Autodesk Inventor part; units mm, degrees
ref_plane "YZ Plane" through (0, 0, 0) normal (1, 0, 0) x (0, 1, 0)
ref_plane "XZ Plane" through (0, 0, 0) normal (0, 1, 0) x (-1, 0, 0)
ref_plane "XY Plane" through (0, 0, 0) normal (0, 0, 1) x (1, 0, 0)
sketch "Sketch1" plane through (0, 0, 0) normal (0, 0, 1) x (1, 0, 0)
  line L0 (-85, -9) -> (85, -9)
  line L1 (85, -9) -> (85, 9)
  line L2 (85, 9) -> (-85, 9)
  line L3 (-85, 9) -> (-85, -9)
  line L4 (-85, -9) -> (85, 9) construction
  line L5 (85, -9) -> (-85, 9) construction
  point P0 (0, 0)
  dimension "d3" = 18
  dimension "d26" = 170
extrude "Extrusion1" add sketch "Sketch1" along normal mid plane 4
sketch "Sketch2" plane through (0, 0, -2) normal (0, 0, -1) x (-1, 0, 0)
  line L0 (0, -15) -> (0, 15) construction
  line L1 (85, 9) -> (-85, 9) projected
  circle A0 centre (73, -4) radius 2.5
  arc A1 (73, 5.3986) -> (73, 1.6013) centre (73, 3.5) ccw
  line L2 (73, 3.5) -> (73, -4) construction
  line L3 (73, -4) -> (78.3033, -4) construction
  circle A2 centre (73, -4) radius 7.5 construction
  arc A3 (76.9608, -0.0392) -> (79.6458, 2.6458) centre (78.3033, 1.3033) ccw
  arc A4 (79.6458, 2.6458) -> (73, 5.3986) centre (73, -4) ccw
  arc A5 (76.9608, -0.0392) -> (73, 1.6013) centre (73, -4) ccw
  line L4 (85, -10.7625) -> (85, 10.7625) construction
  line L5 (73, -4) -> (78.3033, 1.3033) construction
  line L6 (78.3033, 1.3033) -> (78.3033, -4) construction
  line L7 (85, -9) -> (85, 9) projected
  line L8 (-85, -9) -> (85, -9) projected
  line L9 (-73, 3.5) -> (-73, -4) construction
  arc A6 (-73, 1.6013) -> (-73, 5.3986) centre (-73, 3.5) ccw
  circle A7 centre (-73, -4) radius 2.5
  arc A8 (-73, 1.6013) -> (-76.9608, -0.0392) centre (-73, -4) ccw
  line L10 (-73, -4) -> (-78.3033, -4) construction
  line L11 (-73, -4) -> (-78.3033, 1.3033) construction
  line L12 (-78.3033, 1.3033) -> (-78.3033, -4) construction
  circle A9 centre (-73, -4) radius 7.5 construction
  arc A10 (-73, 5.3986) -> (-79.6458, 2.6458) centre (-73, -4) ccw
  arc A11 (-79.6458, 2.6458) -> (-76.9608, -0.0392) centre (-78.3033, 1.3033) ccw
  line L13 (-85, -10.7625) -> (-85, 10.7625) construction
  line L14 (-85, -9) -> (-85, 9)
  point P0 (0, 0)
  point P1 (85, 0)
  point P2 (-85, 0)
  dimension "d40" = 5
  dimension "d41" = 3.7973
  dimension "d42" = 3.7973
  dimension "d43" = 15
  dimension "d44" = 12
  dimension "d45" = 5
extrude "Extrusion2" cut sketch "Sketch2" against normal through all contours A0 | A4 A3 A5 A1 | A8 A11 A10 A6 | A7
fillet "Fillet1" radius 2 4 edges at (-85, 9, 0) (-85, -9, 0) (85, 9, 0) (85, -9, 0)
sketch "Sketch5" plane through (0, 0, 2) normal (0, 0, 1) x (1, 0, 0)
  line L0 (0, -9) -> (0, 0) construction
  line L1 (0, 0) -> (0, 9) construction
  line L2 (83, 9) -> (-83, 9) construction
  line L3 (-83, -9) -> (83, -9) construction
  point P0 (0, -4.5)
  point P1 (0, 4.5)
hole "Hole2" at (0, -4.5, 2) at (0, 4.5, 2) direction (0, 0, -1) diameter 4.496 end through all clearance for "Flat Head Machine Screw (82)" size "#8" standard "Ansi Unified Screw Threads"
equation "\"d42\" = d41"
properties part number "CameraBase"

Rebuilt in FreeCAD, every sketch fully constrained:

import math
import FreeCAD as App
import Part
import Sketcher


def edges_at(feature, points):
    """Names of the edges that pass closest to the given points."""
    edges = feature.Shape.Edges
    near = lambda p: min(range(len(edges)), key=lambda i: edges[i].distToShape(Part.Vertex(*p))[0])
    return sorted({f"Edge{near(p) + 1}" for p in points})


def add_polygon(sketch, points):
    """Adds a closed chain of lines whose ends are joined by coincident constraints."""
    first, n = sketch.GeometryCount, len(points)
    for a, b in zip(points, points[1:] + points[:1]):
        sketch.addGeometry(Part.LineSegment(App.Vector(*a, 0), App.Vector(*b, 0)), False)
    for i in range(n):
        sketch.addConstraint(Sketcher.Constraint("Coincident", first + i, 2, first + (i + 1) % n, 1))

doc = App.newDocument("Part")
body = doc.addObject("PartDesign::Body", "Body")

sketch1 = body.newObject("Sketcher::SketchObject", "Sketch")
sketch1.AttachmentSupport = (doc.getObject("XY_Plane"), [""])
sketch1.MapMode = "FlatFace"
add_polygon(sketch1, [(-85, 9), (-85, -9), (85, -9), (85, 9)])
sketch1.addConstraint([
    Sketcher.Constraint("Vertical", 0),
    Sketcher.Constraint("Horizontal", 1),
    Sketcher.Constraint("Vertical", 2),
    Sketcher.Constraint("Horizontal", 3),
    Sketcher.Constraint("Symmetric", 0, 2, 2, 2, -1, 1),
    Sketcher.Constraint("DistanceX", 1, 1, 1, 2, 170.0),
    Sketcher.Constraint("DistanceY", 0, 2, 0, 1, 18.0),
])
pad1 = body.newObject("PartDesign::Pad", "Pad")
pad1.Profile = sketch1
pad1.Length = 4
pad1.Midplane = True

sketch2 = body.newObject("Sketcher::SketchObject", "Sketch001")
sketch2.AttachmentSupport = (doc.getObject("XY_Plane"), [""])
sketch2.MapMode = "FlatFace"
sketch2.AttachmentOffset = App.Placement(App.Vector(0, 0, -2), App.Rotation())
sketch2.addGeometry([
    Part.Circle(App.Vector(-73, -4, 0), App.Vector(0, 0, 1), 2.5),
    Part.ArcOfCircle(Part.Circle(App.Vector(-73, -4, 0), App.Vector(0, 0, 1), 9.4), math.radians(90), math.radians(135)),
    Part.ArcOfCircle(Part.Circle(App.Vector(-73, 3.5, 0), App.Vector(0, 0, 1), 1.9), math.radians(-90), math.radians(90)),
    Part.ArcOfCircle(Part.Circle(App.Vector(-73, -4, 0), App.Vector(0, 0, 1), 5.6), math.radians(90), math.radians(135)),
    Part.ArcOfCircle(Part.Circle(App.Vector(-78.3, 1.3, 0), App.Vector(0, 0, 1), 1.9), math.radians(135), math.radians(315)),
    Part.ArcOfCircle(Part.Circle(App.Vector(73, -4, 0), App.Vector(0, 0, 1), 5.6), math.radians(45), math.radians(90)),
    Part.ArcOfCircle(Part.Circle(App.Vector(73, 3.5, 0), App.Vector(0, 0, 1), 1.9), math.radians(90), math.radians(270)),
    Part.ArcOfCircle(Part.Circle(App.Vector(73, -4, 0), App.Vector(0, 0, 1), 9.4), math.radians(45), math.radians(90)),
    Part.ArcOfCircle(Part.Circle(App.Vector(78.3, 1.3, 0), App.Vector(0, 0, 1), 1.9), math.radians(-135), math.radians(45)),
    Part.Circle(App.Vector(73, -4, 0), App.Vector(0, 0, 1), 2.5),
], False)
sketch2.addConstraint([
    Sketcher.Constraint("Tangent", 1, 1, 2, 2),
    Sketcher.Constraint("Tangent", 2, 1, 3, 1),
    Sketcher.Constraint("Tangent", 3, 2, 4, 2),
    Sketcher.Constraint("Tangent", 4, 1, 1, 2),
    Sketcher.Constraint("Tangent", 5, 2, 6, 2),
    Sketcher.Constraint("Tangent", 6, 1, 7, 2),
    Sketcher.Constraint("Tangent", 7, 1, 8, 2),
    Sketcher.Constraint("Tangent", 8, 1, 5, 1),
    Sketcher.Constraint("Coincident", 1, 3, 0, 3),
    Sketcher.Constraint("Coincident", 3, 3, 0, 3),
    Sketcher.Constraint("Coincident", 7, 3, 5, 3),
    Sketcher.Constraint("Coincident", 9, 3, 5, 3),
    Sketcher.Constraint("Equal", 3, 5),
    Sketcher.Constraint("Equal", 4, 6),
    Sketcher.Constraint("Equal", 0, 9),
    Sketcher.Constraint("Symmetric", 0, 3, 5, 3, -2),
    Sketcher.Constraint("Horizontal", 4, 3, 8, 3),
    Sketcher.Constraint("Vertical", 1, 3, 2, 3),
    Sketcher.Constraint("Vertical", 5, 3, 6, 3),
    Sketcher.Constraint("Diameter", 0, 5.0),
    Sketcher.Constraint("Radius", 2, 1.8986),
    Sketcher.Constraint("DistanceX", 0, 3, -1, 1, 73.0),
    Sketcher.Constraint("DistanceY", 0, 3, -1, 1, 4.0),
    Sketcher.Constraint("DistanceY", -1, 1, 2, 3, 3.5),
    Sketcher.Constraint("DistanceY", 4, 3, 2, 1, 0.298),
])
pocket1 = body.newObject("PartDesign::Pocket", "Pocket")
pocket1.Profile = sketch2
pocket1.Type = "ThroughAll"
pocket1.Reversed = True
doc.recompute()

fillet = body.newObject("PartDesign::Fillet", "Fillet")
fillet.Base = (pocket1, edges_at(pocket1, [
    (-85, 9, 0),
    (-85, -9, 0),
    (85, 9, 0),
    (85, -9, 0),
]))
fillet.Radius = 2

sketch3 = body.newObject("Sketcher::SketchObject", "Sketch002")
sketch3.AttachmentSupport = (doc.getObject("XY_Plane"), [""])
sketch3.MapMode = "FlatFace"
sketch3.AttachmentOffset = App.Placement(App.Vector(0, 0, 2), App.Rotation())
sketch3.addGeometry([
    Part.Circle(App.Vector(0, -4.5, 0), App.Vector(0, 0, 1), 2.2),
    Part.Circle(App.Vector(0, 4.5, 0), App.Vector(0, 0, 1), 2.2),
], False)
sketch3.addConstraint([
    Sketcher.Constraint("Equal", 0, 1),
    Sketcher.Constraint("Symmetric", 0, 3, 1, 3, -1, 1),
    Sketcher.Constraint("PointOnObject", 0, 3, -2),
    Sketcher.Constraint("Diameter", 0, 4.496),
    Sketcher.Constraint("DistanceY", 0, 3, 1, 3, 9.0),
])
doc.recompute()
hole = body.newObject("PartDesign::Hole", "Hole")
hole.Profile = sketch3
hole.ThreadType = "None"
hole.Diameter = 4.496
hole.DepthType = "ThroughAll"

doc.recompute()
